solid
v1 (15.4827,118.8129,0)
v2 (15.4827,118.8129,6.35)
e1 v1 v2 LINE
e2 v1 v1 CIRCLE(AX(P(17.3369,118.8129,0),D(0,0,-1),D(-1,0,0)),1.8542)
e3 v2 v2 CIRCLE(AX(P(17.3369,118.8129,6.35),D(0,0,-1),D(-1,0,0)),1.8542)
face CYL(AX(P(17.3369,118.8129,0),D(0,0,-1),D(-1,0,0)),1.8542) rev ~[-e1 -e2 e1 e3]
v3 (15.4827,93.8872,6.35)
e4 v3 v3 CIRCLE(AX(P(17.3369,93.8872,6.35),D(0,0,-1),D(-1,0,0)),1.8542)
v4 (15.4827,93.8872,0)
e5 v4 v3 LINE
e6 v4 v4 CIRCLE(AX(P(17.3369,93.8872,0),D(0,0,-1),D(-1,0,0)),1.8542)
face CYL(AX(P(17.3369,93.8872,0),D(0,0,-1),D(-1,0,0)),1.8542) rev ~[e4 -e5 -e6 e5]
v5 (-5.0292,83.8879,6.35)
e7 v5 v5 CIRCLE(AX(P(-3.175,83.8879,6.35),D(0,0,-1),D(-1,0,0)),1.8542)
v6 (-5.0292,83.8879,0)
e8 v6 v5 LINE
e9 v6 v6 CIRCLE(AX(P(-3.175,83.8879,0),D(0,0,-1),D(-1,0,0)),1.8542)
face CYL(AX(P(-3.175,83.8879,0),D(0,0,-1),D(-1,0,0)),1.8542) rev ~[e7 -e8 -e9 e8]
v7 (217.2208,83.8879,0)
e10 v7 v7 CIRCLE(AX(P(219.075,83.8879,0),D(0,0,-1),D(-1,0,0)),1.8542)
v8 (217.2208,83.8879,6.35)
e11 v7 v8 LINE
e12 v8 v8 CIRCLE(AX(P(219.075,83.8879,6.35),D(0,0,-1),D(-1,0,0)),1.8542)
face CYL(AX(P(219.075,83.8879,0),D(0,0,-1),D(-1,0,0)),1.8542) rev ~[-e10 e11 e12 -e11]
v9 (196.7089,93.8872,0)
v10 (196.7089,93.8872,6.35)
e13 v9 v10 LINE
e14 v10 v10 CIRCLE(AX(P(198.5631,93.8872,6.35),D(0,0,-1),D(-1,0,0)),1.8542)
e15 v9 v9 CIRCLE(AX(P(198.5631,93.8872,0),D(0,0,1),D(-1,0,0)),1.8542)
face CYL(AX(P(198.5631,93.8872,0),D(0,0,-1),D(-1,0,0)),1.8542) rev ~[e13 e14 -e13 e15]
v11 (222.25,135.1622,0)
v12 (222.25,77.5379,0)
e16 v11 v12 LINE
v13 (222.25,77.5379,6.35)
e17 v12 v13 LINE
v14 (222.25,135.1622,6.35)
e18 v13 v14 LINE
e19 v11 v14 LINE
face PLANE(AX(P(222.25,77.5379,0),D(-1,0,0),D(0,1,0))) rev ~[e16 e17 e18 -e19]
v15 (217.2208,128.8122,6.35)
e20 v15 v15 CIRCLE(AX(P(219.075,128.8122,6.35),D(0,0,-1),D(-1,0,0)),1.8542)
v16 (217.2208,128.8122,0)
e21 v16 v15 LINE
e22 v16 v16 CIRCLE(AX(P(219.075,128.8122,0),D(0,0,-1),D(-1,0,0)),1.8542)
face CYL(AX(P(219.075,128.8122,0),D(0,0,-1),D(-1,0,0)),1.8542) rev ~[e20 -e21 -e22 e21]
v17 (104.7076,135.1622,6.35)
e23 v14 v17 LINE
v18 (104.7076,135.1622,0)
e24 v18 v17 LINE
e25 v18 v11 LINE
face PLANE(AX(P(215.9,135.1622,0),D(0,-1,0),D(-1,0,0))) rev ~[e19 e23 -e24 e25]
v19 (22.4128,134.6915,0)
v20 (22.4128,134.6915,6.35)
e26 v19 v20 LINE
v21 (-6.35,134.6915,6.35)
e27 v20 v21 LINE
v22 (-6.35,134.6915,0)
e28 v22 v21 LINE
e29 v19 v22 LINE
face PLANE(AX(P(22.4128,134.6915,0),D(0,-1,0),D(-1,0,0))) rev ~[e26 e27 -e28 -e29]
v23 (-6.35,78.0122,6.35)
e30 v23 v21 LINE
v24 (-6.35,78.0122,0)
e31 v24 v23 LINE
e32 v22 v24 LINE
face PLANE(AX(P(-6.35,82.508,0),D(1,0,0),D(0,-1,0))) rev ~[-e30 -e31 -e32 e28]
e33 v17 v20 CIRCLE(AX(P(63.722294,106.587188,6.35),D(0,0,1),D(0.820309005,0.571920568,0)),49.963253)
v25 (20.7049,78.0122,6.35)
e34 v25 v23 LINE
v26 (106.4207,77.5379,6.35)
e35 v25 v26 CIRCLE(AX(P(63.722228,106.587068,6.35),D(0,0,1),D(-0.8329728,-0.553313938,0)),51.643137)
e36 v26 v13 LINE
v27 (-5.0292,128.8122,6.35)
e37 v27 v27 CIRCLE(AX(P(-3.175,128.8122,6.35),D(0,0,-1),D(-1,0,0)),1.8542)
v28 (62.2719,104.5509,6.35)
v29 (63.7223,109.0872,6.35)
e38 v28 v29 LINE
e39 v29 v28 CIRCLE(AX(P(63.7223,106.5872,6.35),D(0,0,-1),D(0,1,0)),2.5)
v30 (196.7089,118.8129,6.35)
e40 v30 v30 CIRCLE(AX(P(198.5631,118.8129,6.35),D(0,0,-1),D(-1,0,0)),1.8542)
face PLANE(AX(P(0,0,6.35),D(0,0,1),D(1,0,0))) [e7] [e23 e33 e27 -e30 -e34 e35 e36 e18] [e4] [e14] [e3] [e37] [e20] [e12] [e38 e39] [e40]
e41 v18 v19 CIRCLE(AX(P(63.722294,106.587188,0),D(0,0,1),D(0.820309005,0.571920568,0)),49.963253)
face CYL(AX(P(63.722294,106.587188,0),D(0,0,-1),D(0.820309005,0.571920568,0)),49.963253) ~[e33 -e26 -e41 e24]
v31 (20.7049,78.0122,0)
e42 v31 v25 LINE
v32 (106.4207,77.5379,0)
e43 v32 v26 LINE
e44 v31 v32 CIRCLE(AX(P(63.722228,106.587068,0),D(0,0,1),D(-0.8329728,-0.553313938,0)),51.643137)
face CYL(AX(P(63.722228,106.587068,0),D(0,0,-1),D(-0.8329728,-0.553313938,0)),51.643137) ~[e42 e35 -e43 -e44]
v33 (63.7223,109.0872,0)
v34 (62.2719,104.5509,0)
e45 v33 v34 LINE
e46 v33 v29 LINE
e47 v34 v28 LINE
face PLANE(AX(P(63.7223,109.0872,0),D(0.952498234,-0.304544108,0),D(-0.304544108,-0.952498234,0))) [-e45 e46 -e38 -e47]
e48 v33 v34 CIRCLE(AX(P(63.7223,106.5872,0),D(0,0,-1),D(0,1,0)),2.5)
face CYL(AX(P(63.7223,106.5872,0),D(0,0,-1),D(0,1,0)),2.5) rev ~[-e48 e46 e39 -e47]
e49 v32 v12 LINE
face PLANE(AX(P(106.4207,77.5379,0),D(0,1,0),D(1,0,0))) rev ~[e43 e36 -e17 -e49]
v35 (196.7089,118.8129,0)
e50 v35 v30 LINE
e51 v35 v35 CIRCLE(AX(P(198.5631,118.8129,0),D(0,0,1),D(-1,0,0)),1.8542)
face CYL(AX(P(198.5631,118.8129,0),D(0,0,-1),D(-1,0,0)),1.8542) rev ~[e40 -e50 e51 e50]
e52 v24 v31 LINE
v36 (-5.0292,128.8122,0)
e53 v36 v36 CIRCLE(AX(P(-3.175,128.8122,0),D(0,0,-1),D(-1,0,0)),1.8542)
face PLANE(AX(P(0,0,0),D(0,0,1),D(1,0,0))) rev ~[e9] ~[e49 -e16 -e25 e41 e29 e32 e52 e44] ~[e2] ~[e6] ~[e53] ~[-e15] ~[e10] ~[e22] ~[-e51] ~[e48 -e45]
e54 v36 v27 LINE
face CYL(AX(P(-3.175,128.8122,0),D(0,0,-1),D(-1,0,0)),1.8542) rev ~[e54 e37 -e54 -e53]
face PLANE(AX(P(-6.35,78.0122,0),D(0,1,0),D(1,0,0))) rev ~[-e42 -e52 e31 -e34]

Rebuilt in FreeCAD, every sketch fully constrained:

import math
import FreeCAD as App
import Part
import Sketcher
Q = App.Units.Quantity

doc = App.newDocument("Part")
body = doc.addObject("PartDesign::Body", "Body")

sketch1 = body.newObject("Sketcher::SketchObject", "Sketch")
sketch1.AttachmentSupport = (doc.getObject("XY_Plane"), [""])
sketch1.MapMode = "FlatFace"
sketch1.addGeometry(Part.LineSegment(App.Vector(-6, 78, 0), App.Vector(21, 78, 0)), False)
sketch1.addGeometry(Part.ArcOfCircle(Part.Circle(App.Vector(64, 107, 0), App.Vector(0, 0, 1), 52), math.radians(-146), math.radians(-34)), False)
sketch1.addGeometry(Part.LineSegment(App.Vector(106, 78, 0), App.Vector(222, 78, 0)), False)
sketch1.addGeometry(Part.LineSegment(App.Vector(222, 78, 0), App.Vector(222, 135, 0)), False)
sketch1.addGeometry(Part.LineSegment(App.Vector(222, 135, 0), App.Vector(105, 135, 0)), False)
sketch1.addGeometry(Part.ArcOfCircle(Part.Circle(App.Vector(64, 107, 0), App.Vector(0, 0, 1), 50), math.radians(35), math.radians(146)), False)
sketch1.addGeometry(Part.LineSegment(App.Vector(22, 135, 0), App.Vector(-6, 135, 0)), False)
sketch1.addGeometry(Part.LineSegment(App.Vector(-6, 135, 0), App.Vector(-6, 78, 0)), False)
sketch1.addConstraint(Sketcher.Constraint("Coincident", 0, 2, 1, 1))
sketch1.addConstraint(Sketcher.Constraint("Coincident", 1, 2, 2, 1))
sketch1.addConstraint(Sketcher.Constraint("Coincident", 2, 2, 3, 1))
sketch1.addConstraint(Sketcher.Constraint("Coincident", 3, 2, 4, 1))
sketch1.addConstraint(Sketcher.Constraint("Coincident", 4, 2, 5, 1))
sketch1.addConstraint(Sketcher.Constraint("Coincident", 5, 2, 6, 1))
sketch1.addConstraint(Sketcher.Constraint("Coincident", 6, 2, 7, 1))
sketch1.addConstraint(Sketcher.Constraint("Coincident", 7, 2, 0, 1))
sketch1.addConstraint(Sketcher.Constraint("Horizontal", 0))
sketch1.addConstraint(Sketcher.Constraint("Horizontal", 2))
sketch1.addConstraint(Sketcher.Constraint("Vertical", 3))
sketch1.addConstraint(Sketcher.Constraint("Horizontal", 4))
sketch1.addConstraint(Sketcher.Constraint("Horizontal", 6))
sketch1.addConstraint(Sketcher.Constraint("Vertical", 7))
sketch1.addConstraint(Sketcher.Constraint("Coincident", 5, 3, 1, 3))
sketch1.addConstraint(Sketcher.Constraint("Radius", 1, Q("2.0332 in")))
sketch1.addConstraint(Sketcher.Constraint("DistanceX", -1, 1, 2, 2, Q("8.75 in")))
sketch1.addConstraint(Sketcher.Constraint("DistanceX", 6, 2, -1, 1, Q("0.25 in")))
sketch1.addConstraint(Sketcher.Constraint("Radius", 5, Q("49.9632 mm")))
sketch1.addConstraint(Sketcher.Constraint("DistanceY", 0, 2, 3, 2, Q("2.25 in")))
sketch1.addConstraint(Sketcher.Constraint("DistanceX", 2, 1, 2, 2, Q("4.5602 in")))
sketch1.addConstraint(Sketcher.Constraint("DistanceX", 6, 2, 6, 1, Q("1.1324 in")))
sketch1.addConstraint(Sketcher.Constraint("DistanceY", 0, 2, 1, 3, Q("1.125 in")))
sketch1.addConstraint(Sketcher.Constraint("DistanceX", 0, 1, 0, 2, Q("27.055 mm")))
sketch1.addConstraint(Sketcher.Constraint("DistanceY", -1, 1, 1, 3, Q("106.5872 mm")))
pad1 = body.newObject("PartDesign::Pad", "Pad")
pad1.Profile = sketch1
pad1.Length = Q("0.25 in")

sketch2 = body.newObject("Sketcher::SketchObject", "Sketch001")
sketch2.AttachmentSupport = (doc.getObject("XY_Plane"), [""])
sketch2.MapMode = "FlatFace"
sketch2.addGeometry(Part.LineSegment(App.Vector(62.3, 104.6, 0), App.Vector(63.7, 109.1, 0)), False)
sketch2.addGeometry(Part.ArcOfCircle(Part.Circle(App.Vector(63.7, 106.6, 0), App.Vector(0, 0, 1), 2.5), math.radians(-125), math.radians(90)), False)
sketch2.addConstraint(Sketcher.Constraint("Coincident", 0, 1, 1, 1))
sketch2.addConstraint(Sketcher.Constraint("Coincident", 1, 2, 0, 2))
sketch2.addConstraint(Sketcher.Constraint("Radius", 1, Q("2.5 mm")))
sketch2.addConstraint(Sketcher.Constraint("Distance", 0, Q("0.1875 in")))
sketch2.addConstraint(Sketcher.Constraint("Angle", 0, Q("72.2693 deg")))
sketch2.addConstraint(Sketcher.Constraint("DistanceX", -1, 1, 1, 3, Q("63.7223 mm")))
sketch2.addConstraint(Sketcher.Constraint("DistanceY", -1, 1, 1, 3, Q("106.5872 mm")))
pocket1 = body.newObject("PartDesign::Pocket", "Pocket")
pocket1.Profile = sketch2
pocket1.Type = "ThroughAll"
pocket1.Reversed = True

sketch3 = body.newObject("Sketcher::SketchObject", "Sketch002")
sketch3.AttachmentSupport = (doc.getObject("XY_Plane"), [""])
sketch3.MapMode = "FlatFace"
sketch3.addGeometry(Part.Circle(App.Vector(219.1, 128.8, 0), App.Vector(0, 0, 1), 1.9), False)
sketch3.addGeometry(Part.Circle(App.Vector(198.6, 118.8, 0), App.Vector(0, 0, 1), 1.9), False)
sketch3.addGeometry(Part.Circle(App.Vector(219.1, 83.9, 0), App.Vector(0, 0, 1), 1.9), False)
sketch3.addGeometry(Part.Circle(App.Vector(198.6, 93.9, 0), App.Vector(0, 0, 1), 1.9), False)
sketch3.addGeometry(Part.Circle(App.Vector(-3.2, 128.8, 0), App.Vector(0, 0, 1), 1.9), False)
sketch3.addGeometry(Part.Circle(App.Vector(17.3, 118.8, 0), App.Vector(0, 0, 1), 1.9), False)
sketch3.addGeometry(Part.Circle(App.Vector(17.3, 93.9, 0), App.Vector(0, 0, 1), 1.9), False)
sketch3.addGeometry(Part.Circle(App.Vector(-3.2, 83.9, 0), App.Vector(0, 0, 1), 1.9), False)
sketch3.addConstraint(Sketcher.Constraint("Equal", 0, 1))
sketch3.addConstraint(Sketcher.Constraint("Equal", 1, 2))
sketch3.addConstraint(Sketcher.Constraint("Equal", 2, 3))
sketch3.addConstraint(Sketcher.Constraint("Equal", 3, 4))
sketch3.addConstraint(Sketcher.Constraint("Equal", 4, 5))
sketch3.addConstraint(Sketcher.Constraint("Equal", 5, 6))
sketch3.addConstraint(Sketcher.Constraint("Equal", 6, 7))
sketch3.addConstraint(Sketcher.Constraint("Horizontal", 0, 3, 4, 3))
sketch3.addConstraint(Sketcher.Constraint("Horizontal", 1, 3, 5, 3))
sketch3.addConstraint(Sketcher.Constraint("Horizontal", 3, 3, 6, 3))
sketch3.addConstraint(Sketcher.Constraint("Horizontal", 2, 3, 7, 3))
sketch3.addConstraint(Sketcher.Constraint("Vertical", 0, 3, 2, 3))
sketch3.addConstraint(Sketcher.Constraint("Vertical", 1, 3, 3, 3))
sketch3.addConstraint(Sketcher.Constraint("Vertical", 5, 3, 6, 3))
sketch3.addConstraint(Sketcher.Constraint("Vertical", 4, 3, 7, 3))
sketch3.addConstraint(Sketcher.Constraint("Diameter", 0, Q("0.146 in")))
sketch3.addConstraint(Sketcher.Constraint("DistanceX", 4, 3, -1, 1, Q("0.125 in")))
sketch3.addConstraint(Sketcher.Constraint("DistanceX", 4, 3, 0, 3, Q("8.75 in")))
sketch3.addConstraint(Sketcher.Constraint("DistanceY", 2, 3, 1, 3, Q("1.375 in")))
sketch3.addConstraint(Sketcher.Constraint("DistanceY", 3, 3, 0, 3, Q("1.375 in")))
sketch3.addConstraint(Sketcher.Constraint("DistanceX", 5, 3, 1, 3, Q("7.1349 in")))
sketch3.addConstraint(Sketcher.Constraint("DistanceY", -1, 1, 0, 3, Q("128.8122 mm")))
sketch3.addConstraint(Sketcher.Constraint("DistanceX", -1, 1, 1, 3, Q("198.563 mm")))
sketch3.addConstraint(Sketcher.Constraint("DistanceY", -1, 1, 1, 3, Q("118.813 mm")))
pocket2 = body.newObject("PartDesign::Pocket", "Pocket001")
pocket2.Profile = sketch3
pocket2.Type = "ThroughAll"
pocket2.Reversed = True

doc.recompute()
